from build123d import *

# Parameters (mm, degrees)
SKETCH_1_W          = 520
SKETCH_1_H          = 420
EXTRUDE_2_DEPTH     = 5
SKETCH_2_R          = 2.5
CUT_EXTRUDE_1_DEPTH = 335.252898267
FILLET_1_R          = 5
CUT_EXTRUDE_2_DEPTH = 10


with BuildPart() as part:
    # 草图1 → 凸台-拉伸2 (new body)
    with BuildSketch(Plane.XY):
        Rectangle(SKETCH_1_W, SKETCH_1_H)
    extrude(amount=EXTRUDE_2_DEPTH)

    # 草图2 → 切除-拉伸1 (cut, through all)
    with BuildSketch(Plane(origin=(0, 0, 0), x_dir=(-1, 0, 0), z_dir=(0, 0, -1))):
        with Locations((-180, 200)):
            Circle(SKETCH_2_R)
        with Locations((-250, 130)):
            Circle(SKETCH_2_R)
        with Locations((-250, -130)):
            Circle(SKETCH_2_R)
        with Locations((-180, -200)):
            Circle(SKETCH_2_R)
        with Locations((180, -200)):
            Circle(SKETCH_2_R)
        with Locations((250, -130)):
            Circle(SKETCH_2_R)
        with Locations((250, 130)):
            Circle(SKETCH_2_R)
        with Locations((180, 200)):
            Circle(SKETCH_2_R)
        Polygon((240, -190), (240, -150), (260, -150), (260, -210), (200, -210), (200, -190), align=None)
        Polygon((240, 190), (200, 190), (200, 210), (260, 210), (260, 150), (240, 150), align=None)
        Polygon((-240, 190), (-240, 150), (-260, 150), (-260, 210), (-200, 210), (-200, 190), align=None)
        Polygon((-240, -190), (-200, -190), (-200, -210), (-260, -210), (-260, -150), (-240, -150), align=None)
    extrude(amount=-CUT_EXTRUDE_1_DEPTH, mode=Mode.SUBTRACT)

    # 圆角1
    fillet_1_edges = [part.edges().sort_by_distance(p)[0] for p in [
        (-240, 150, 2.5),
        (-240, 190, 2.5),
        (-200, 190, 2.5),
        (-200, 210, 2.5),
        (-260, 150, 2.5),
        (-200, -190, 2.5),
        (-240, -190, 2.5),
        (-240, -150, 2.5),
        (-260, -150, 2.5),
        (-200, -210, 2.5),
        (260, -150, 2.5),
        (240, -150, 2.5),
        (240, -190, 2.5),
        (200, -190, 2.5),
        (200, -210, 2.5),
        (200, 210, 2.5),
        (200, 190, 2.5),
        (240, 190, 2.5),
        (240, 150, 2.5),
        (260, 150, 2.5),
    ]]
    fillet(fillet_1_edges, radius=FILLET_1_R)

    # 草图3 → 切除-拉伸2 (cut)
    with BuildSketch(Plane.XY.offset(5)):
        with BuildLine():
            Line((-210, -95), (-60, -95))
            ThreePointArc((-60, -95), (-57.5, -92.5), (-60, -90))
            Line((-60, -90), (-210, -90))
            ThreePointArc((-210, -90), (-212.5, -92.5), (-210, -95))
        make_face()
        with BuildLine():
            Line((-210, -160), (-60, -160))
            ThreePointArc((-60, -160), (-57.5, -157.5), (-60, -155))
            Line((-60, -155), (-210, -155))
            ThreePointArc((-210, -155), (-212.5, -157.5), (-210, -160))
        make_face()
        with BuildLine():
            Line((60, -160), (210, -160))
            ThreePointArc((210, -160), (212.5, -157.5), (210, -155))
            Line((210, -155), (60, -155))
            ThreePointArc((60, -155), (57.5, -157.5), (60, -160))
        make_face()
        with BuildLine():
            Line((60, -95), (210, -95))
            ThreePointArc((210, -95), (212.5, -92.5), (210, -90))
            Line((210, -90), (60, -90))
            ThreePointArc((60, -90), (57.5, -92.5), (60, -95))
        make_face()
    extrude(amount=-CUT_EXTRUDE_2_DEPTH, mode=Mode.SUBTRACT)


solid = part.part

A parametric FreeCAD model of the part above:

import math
import FreeCAD as App
import Part
import Sketcher


def edges_at(feature, points):
    """Names of the edges that pass closest to the given points."""
    edges = feature.Shape.Edges
    near = lambda p: min(range(len(edges)), key=lambda i: edges[i].distToShape(Part.Vertex(*p))[0])
    return sorted({f"Edge{near(p) + 1}" for p in points})

doc = App.newDocument("Part")
body = doc.addObject("PartDesign::Body", "Body")

# Sketch on XY plane
sketch1 = body.newObject("Sketcher::SketchObject", "Sketch")
sketch1.AttachmentSupport = (doc.getObject("XY_Plane"), [""])
sketch1.MapMode = "FlatFace"
sketch1.addGeometry([
    Part.LineSegment(App.Vector(-260, 210, 0), App.Vector(-260, -210, 0)),
    Part.LineSegment(App.Vector(-260, -210, 0), App.Vector(260, -210, 0)),
    Part.LineSegment(App.Vector(260, -210, 0), App.Vector(260, 210, 0)),
    Part.LineSegment(App.Vector(260, 210, 0), App.Vector(-260, 210, 0)),
], False)
sketch1.addConstraint([
    Sketcher.Constraint("Coincident", 0, 2, 1, 1),
    Sketcher.Constraint("Coincident", 1, 2, 2, 1),
    Sketcher.Constraint("Coincident", 2, 2, 3, 1),
    Sketcher.Constraint("Coincident", 3, 2, 0, 1),
    Sketcher.Constraint("Vertical", 0),
    Sketcher.Constraint("Horizontal", 1),
    Sketcher.Constraint("Vertical", 2),
    Sketcher.Constraint("Horizontal", 3),
    Sketcher.Constraint("Symmetric", 0, 2, 2, 2, -1, 1),
    Sketcher.Constraint("DistanceX", 1, 1, 1, 2, 520.0),
    Sketcher.Constraint("DistanceY", 0, 2, 0, 1, 420.0),
])
pad1 = body.newObject("PartDesign::Pad", "Pad")
pad1.Profile = sketch1
pad1.Length = 5

# Sketch on XY plane
sketch2 = body.newObject("Sketcher::SketchObject", "Sketch001")
sketch2.AttachmentSupport = (doc.getObject("XY_Plane"), [""])
sketch2.MapMode = "FlatFace"
sketch2.addGeometry([
    Part.Circle(App.Vector(180, 200, 0), App.Vector(0, 0, 1), 2.5),  # 0
    Part.Circle(App.Vector(250, 130, 0), App.Vector(0, 0, 1), 2.5),  # 1
    Part.Circle(App.Vector(250, -130, 0), App.Vector(0, 0, 1), 2.5),  # 2
    Part.Circle(App.Vector(180, -200, 0), App.Vector(0, 0, 1), 2.5),  # 3
    Part.Circle(App.Vector(-180, -200, 0), App.Vector(0, 0, 1), 2.5),  # 4
    Part.Circle(App.Vector(-250, -130, 0), App.Vector(0, 0, 1), 2.5),  # 5
    Part.Circle(App.Vector(-250, 130, 0), App.Vector(0, 0, 1), 2.5),  # 6
    Part.Circle(App.Vector(-180, 200, 0), App.Vector(0, 0, 1), 2.5),  # 7
    Part.LineSegment(App.Vector(-240, -150, 0), App.Vector(-240, -190, 0)),  # 8
    Part.LineSegment(App.Vector(-240, -190, 0), App.Vector(-200, -190, 0)),  # 9
    Part.LineSegment(App.Vector(-200, -190, 0), App.Vector(-200, -210, 0)),  # 10
    Part.LineSegment(App.Vector(-200, -210, 0), App.Vector(-260, -210, 0)),  # 11
    Part.LineSegment(App.Vector(-260, -210, 0), App.Vector(-260, -150, 0)),  # 12
    Part.LineSegment(App.Vector(-260, -150, 0), App.Vector(-240, -150, 0)),  # 13
    Part.LineSegment(App.Vector(-200, 190, 0), App.Vector(-240, 190, 0)),  # 14
    Part.LineSegment(App.Vector(-240, 190, 0), App.Vector(-240, 150, 0)),  # 15
    Part.LineSegment(App.Vector(-240, 150, 0), App.Vector(-260, 150, 0)),  # 16
    Part.LineSegment(App.Vector(-260, 150, 0), App.Vector(-260, 210, 0)),  # 17
    Part.LineSegment(App.Vector(-260, 210, 0), App.Vector(-200, 210, 0)),  # 18
    Part.LineSegment(App.Vector(-200, 210, 0), App.Vector(-200, 190, 0)),  # 19
    Part.LineSegment(App.Vector(240, 150, 0), App.Vector(240, 190, 0)),  # 20
    Part.LineSegment(App.Vector(240, 190, 0), App.Vector(200, 190, 0)),  # 21
    Part.LineSegment(App.Vector(200, 190, 0), App.Vector(200, 210, 0)),  # 22
    Part.LineSegment(App.Vector(200, 210, 0), App.Vector(260, 210, 0)),  # 23
    Part.LineSegment(App.Vector(260, 210, 0), App.Vector(260, 150, 0)),  # 24
    Part.LineSegment(App.Vector(260, 150, 0), App.Vector(240, 150, 0)),  # 25
    Part.LineSegment(App.Vector(200, -190, 0), App.Vector(240, -190, 0)),  # 26
    Part.LineSegment(App.Vector(240, -190, 0), App.Vector(240, -150, 0)),  # 27
    Part.LineSegment(App.Vector(240, -150, 0), App.Vector(260, -150, 0)),  # 28
    Part.LineSegment(App.Vector(260, -150, 0), App.Vector(260, -210, 0)),  # 29
    Part.LineSegment(App.Vector(260, -210, 0), App.Vector(200, -210, 0)),  # 30
    Part.LineSegment(App.Vector(200, -210, 0), App.Vector(200, -190, 0)),  # 31
], False)
sketch2.addConstraint([
    Sketcher.Constraint("Coincident", 8, 2, 9, 1),
    Sketcher.Constraint("Coincident", 9, 2, 10, 1),
    Sketcher.Constraint("Coincident", 10, 2, 11, 1),
    Sketcher.Constraint("Coincident", 11, 2, 12, 1),
    Sketcher.Constraint("Coincident", 12, 2, 13, 1),
    Sketcher.Constraint("Coincident", 13, 2, 8, 1),
    Sketcher.Constraint("Coincident", 14, 2, 15, 1),
    Sketcher.Constraint("Coincident", 15, 2, 16, 1),
    Sketcher.Constraint("Coincident", 16, 2, 17, 1),
    Sketcher.Constraint("Coincident", 17, 2, 18, 1),
    Sketcher.Constraint("Coincident", 18, 2, 19, 1),
    Sketcher.Constraint("Coincident", 19, 2, 14, 1),
    Sketcher.Constraint("Coincident", 20, 2, 21, 1),
    Sketcher.Constraint("Coincident", 21, 2, 22, 1),
    Sketcher.Constraint("Coincident", 22, 2, 23, 1),
    Sketcher.Constraint("Coincident", 23, 2, 24, 1),
    Sketcher.Constraint("Coincident", 24, 2, 25, 1),
    Sketcher.Constraint("Coincident", 25, 2, 20, 1),
    Sketcher.Constraint("Coincident", 26, 2, 27, 1),
    Sketcher.Constraint("Coincident", 27, 2, 28, 1),
    Sketcher.Constraint("Coincident", 28, 2, 29, 1),
    Sketcher.Constraint("Coincident", 29, 2, 30, 1),
    Sketcher.Constraint("Coincident", 30, 2, 31, 1),
    Sketcher.Constraint("Coincident", 31, 2, 26, 1),
    Sketcher.Constraint("Vertical", 8),
    Sketcher.Constraint("Horizontal", 9),
    Sketcher.Constraint("Vertical", 10),
    Sketcher.Constraint("Horizontal", 11),
    Sketcher.Constraint("Vertical", 12),
    Sketcher.Constraint("Horizontal", 13),
    Sketcher.Constraint("Horizontal", 14),
    Sketcher.Constraint("Vertical", 15),
    Sketcher.Constraint("Horizontal", 16),
    Sketcher.Constraint("Vertical", 17),
    Sketcher.Constraint("Horizontal", 18),
    Sketcher.Constraint("Vertical", 19),
    Sketcher.Constraint("Vertical", 20),
    Sketcher.Constraint("Horizontal", 21),
    Sketcher.Constraint("Vertical", 22),
    Sketcher.Constraint("Horizontal", 23),
    Sketcher.Constraint("Vertical", 24),
    Sketcher.Constraint("Horizontal", 25),
    Sketcher.Constraint("Horizontal", 26),
    Sketcher.Constraint("Vertical", 27),
    Sketcher.Constraint("Horizontal", 28),
    Sketcher.Constraint("Vertical", 29),
    Sketcher.Constraint("Horizontal", 30),
    Sketcher.Constraint("Vertical", 31),
    Sketcher.Constraint("Equal", 0, 1),
    Sketcher.Constraint("Equal", 1, 2),
    Sketcher.Constraint("Equal", 2, 3),
    Sketcher.Constraint("Equal", 3, 4),
    Sketcher.Constraint("Equal", 4, 5),
    Sketcher.Constraint("Equal", 5, 6),
    Sketcher.Constraint("Equal", 6, 7),
    Sketcher.Constraint("Symmetric", 0, 3, 4, 3, -1, 1),
    Sketcher.Constraint("Symmetric", 1, 3, 5, 3, -1, 1),
    Sketcher.Constraint("Symmetric", 2, 3, 6, 3, -1, 1),
    Sketcher.Constraint("Symmetric", 3, 3, 7, 3, -1, 1),
    Sketcher.Constraint("Symmetric", 8, 2, 20, 2, -1, 1),
    Sketcher.Constraint("Symmetric", 10, 2, 22, 2, -1, 1),
    Sketcher.Constraint("Symmetric", 12, 2, 24, 2, -1, 1),
    Sketcher.Constraint("Symmetric", 14, 2, 26, 2, -1, 1),
    Sketcher.Constraint("Symmetric", 16, 2, 28, 2, -1, 1),
    Sketcher.Constraint("Symmetric", 18, 2, 30, 2, -1, 1),
    Sketcher.Constraint("Symmetric", 3, 3, 4, 3, -2),
    Sketcher.Constraint("Symmetric", 2, 3, 5, 3, -2),
    Sketcher.Constraint("Symmetric", 14, 2, 20, 2, -2),
    Sketcher.Constraint("Symmetric", 18, 2, 22, 2, -2),
    Sketcher.Constraint("Symmetric", 16, 2, 24, 2, -2),
    Sketcher.Constraint("Equal", 26, 8),
    Sketcher.Constraint("Equal", 28, 10),
    Sketcher.Constraint("Diameter", 0, 5.0),
    Sketcher.Constraint("DistanceX", 9, 1, 9, 2, 40.0),
    Sketcher.Constraint("DistanceX", 11, 2, 11, 1, 60.0),
    Sketcher.Constraint("DistanceX", -1, 1, 0, 3, 180.0),
    Sketcher.Constraint("DistanceY", -1, 1, 0, 3, 200.0),
    Sketcher.Constraint("DistanceX", -1, 1, 1, 3, 250.0),
    Sketcher.Constraint("DistanceY", -1, 1, 1, 3, 130.0),
    Sketcher.Constraint("DistanceX", 8, 2, -1, 1, 240.0),
    Sketcher.Constraint("DistanceY", 8, 2, -1, 1, 190.0),
])
pocket1 = body.newObject("PartDesign::Pocket", "Pocket")
pocket1.Profile = sketch2
pocket1.Type = "ThroughAll"
pocket1.Reversed = True
doc.recompute()

fillet = body.newObject("PartDesign::Fillet", "Fillet")
fillet.Base = (pocket1, edges_at(pocket1, [
    (-240, 150, 2.5),
    (-240, 190, 2.5),
    (-200, 190, 2.5),
    (-200, 210, 2.5),
    (-260, 150, 2.5),
    (-200, -190, 2.5),
    (-240, -190, 2.5),
    (-240, -150, 2.5),
    (-260, -150, 2.5),
    (-200, -210, 2.5),
    (260, -150, 2.5),
    (240, -150, 2.5),
    (240, -190, 2.5),
    (200, -190, 2.5),
    (200, -210, 2.5),
    (200, 210, 2.5),
    (200, 190, 2.5),
    (240, 190, 2.5),
    (240, 150, 2.5),
    (260, 150, 2.5),
]))
fillet.Radius = 5

# Sketch on XY plane
sketch3 = body.newObject("Sketcher::SketchObject", "Sketch002")
sketch3.AttachmentSupport = (doc.getObject("XY_Plane"), [""])
sketch3.MapMode = "FlatFace"
sketch3.AttachmentOffset = App.Placement(App.Vector(0, 0, 5), App.Rotation())
sketch3.addGeometry([
    Part.LineSegment(App.Vector(-210, -95, 0), App.Vector(-60, -95, 0)),  # 0
    Part.ArcOfCircle(Part.Circle(App.Vector(-60, -92.5, 0), App.Vector(0, 0, 1), 2.5), math.radians(-90), math.radians(90)),  # 1
    Part.LineSegment(App.Vector(-60, -90, 0), App.Vector(-210, -90, 0)),  # 2
    Part.ArcOfCircle(Part.Circle(App.Vector(-210, -92.5, 0), App.Vector(0, 0, 1), 2.5), math.radians(90), math.radians(270)),  # 3
    Part.LineSegment(App.Vector(-210, -160, 0), App.Vector(-60, -160, 0)),  # 4
    Part.ArcOfCircle(Part.Circle(App.Vector(-60, -157.5, 0), App.Vector(0, 0, 1), 2.5), math.radians(-90), math.radians(90)),  # 5
    Part.LineSegment(App.Vector(-60, -155, 0), App.Vector(-210, -155, 0)),  # 6
    Part.ArcOfCircle(Part.Circle(App.Vector(-210, -157.5, 0), App.Vector(0, 0, 1), 2.5), math.radians(90), math.radians(270)),  # 7
    Part.LineSegment(App.Vector(60, -160, 0), App.Vector(210, -160, 0)),  # 8
    Part.ArcOfCircle(Part.Circle(App.Vector(210, -157.5, 0), App.Vector(0, 0, 1), 2.5), math.radians(-90), math.radians(90)),  # 9
    Part.LineSegment(App.Vector(210, -155, 0), App.Vector(60, -155, 0)),  # 10
    Part.ArcOfCircle(Part.Circle(App.Vector(60, -157.5, 0), App.Vector(0, 0, 1), 2.5), math.radians(90), math.radians(270)),  # 11
    Part.LineSegment(App.Vector(60, -95, 0), App.Vector(210, -95, 0)),  # 12
    Part.ArcOfCircle(Part.Circle(App.Vector(210, -92.5, 0), App.Vector(0, 0, 1), 2.5), math.radians(-90), math.radians(90)),  # 13
    Part.LineSegment(App.Vector(210, -90, 0), App.Vector(60, -90, 0)),  # 14
    Part.ArcOfCircle(Part.Circle(App.Vector(60, -92.5, 0), App.Vector(0, 0, 1), 2.5), math.radians(90), math.radians(270)),  # 15
], False)
sketch3.addConstraint([
    Sketcher.Constraint("Tangent", 0, 2, 1, 1),
    Sketcher.Constraint("Tangent", 1, 2, 2, 1),
    Sketcher.Constraint("Tangent", 2, 2, 3, 1),
    Sketcher.Constraint("Tangent", 3, 2, 0, 1),
    Sketcher.Constraint("Tangent", 4, 2, 5, 1),
    Sketcher.Constraint("Tangent", 5, 2, 6, 1),
    Sketcher.Constraint("Tangent", 6, 2, 7, 1),
    Sketcher.Constraint("Tangent", 7, 2, 4, 1),
    Sketcher.Constraint("Tangent", 8, 2, 9, 1),
    Sketcher.Constraint("Tangent", 9, 2, 10, 1),
    Sketcher.Constraint("Tangent", 10, 2, 11, 1),
    Sketcher.Constraint("Tangent", 11, 2, 8, 1),
    Sketcher.Constraint("Tangent", 12, 2, 13, 1),
    Sketcher.Constraint("Tangent", 13, 2, 14, 1),
    Sketcher.Constraint("Tangent", 14, 2, 15, 1),
    Sketcher.Constraint("Tangent", 15, 2, 12, 1),
    Sketcher.Constraint("Horizontal", 0),
    Sketcher.Constraint("Horizontal", 2),
    Sketcher.Constraint("Horizontal", 4),
    Sketcher.Constraint("Horizontal", 6),
    Sketcher.Constraint("Horizontal", 8),
    Sketcher.Constraint("Horizontal", 10),
    Sketcher.Constraint("Horizontal", 12),
    Sketcher.Constraint("Horizontal", 14),
    Sketcher.Constraint("Equal", 3, 5),
    Sketcher.Constraint("Equal", 7, 9),
    Sketcher.Constraint("Equal", 11, 13),
    Sketcher.Constraint("Symmetric", 7, 3, 9, 3, -2),
    Sketcher.Constraint("Symmetric", 3, 3, 13, 3, -2),
    Sketcher.Constraint("Vertical", 1, 3, 5, 3),
    Sketcher.Constraint("Vertical", 3, 3, 7, 3),
    Sketcher.Constraint("Vertical", 11, 3, 15, 3),
    Sketcher.Constraint("Equal", 6, 8),
    Sketcher.Constraint("Radius", 1, 2.5),
    Sketcher.Constraint("DistanceX", 0, 1, 0, 2, 150.0),
    Sketcher.Constraint("DistanceX", 1, 3, -1, 1, 60.0),
    Sketcher.Constraint("DistanceY", 0, 2, -1, 1, 95.0),
    Sketcher.Constraint("DistanceY", 4, 2, -1, 1, 160.0),
])
pocket2 = body.newObject("PartDesign::Pocket", "Pocket001")
pocket2.Profile = sketch3
pocket2.Length = 10

doc.recompute()
